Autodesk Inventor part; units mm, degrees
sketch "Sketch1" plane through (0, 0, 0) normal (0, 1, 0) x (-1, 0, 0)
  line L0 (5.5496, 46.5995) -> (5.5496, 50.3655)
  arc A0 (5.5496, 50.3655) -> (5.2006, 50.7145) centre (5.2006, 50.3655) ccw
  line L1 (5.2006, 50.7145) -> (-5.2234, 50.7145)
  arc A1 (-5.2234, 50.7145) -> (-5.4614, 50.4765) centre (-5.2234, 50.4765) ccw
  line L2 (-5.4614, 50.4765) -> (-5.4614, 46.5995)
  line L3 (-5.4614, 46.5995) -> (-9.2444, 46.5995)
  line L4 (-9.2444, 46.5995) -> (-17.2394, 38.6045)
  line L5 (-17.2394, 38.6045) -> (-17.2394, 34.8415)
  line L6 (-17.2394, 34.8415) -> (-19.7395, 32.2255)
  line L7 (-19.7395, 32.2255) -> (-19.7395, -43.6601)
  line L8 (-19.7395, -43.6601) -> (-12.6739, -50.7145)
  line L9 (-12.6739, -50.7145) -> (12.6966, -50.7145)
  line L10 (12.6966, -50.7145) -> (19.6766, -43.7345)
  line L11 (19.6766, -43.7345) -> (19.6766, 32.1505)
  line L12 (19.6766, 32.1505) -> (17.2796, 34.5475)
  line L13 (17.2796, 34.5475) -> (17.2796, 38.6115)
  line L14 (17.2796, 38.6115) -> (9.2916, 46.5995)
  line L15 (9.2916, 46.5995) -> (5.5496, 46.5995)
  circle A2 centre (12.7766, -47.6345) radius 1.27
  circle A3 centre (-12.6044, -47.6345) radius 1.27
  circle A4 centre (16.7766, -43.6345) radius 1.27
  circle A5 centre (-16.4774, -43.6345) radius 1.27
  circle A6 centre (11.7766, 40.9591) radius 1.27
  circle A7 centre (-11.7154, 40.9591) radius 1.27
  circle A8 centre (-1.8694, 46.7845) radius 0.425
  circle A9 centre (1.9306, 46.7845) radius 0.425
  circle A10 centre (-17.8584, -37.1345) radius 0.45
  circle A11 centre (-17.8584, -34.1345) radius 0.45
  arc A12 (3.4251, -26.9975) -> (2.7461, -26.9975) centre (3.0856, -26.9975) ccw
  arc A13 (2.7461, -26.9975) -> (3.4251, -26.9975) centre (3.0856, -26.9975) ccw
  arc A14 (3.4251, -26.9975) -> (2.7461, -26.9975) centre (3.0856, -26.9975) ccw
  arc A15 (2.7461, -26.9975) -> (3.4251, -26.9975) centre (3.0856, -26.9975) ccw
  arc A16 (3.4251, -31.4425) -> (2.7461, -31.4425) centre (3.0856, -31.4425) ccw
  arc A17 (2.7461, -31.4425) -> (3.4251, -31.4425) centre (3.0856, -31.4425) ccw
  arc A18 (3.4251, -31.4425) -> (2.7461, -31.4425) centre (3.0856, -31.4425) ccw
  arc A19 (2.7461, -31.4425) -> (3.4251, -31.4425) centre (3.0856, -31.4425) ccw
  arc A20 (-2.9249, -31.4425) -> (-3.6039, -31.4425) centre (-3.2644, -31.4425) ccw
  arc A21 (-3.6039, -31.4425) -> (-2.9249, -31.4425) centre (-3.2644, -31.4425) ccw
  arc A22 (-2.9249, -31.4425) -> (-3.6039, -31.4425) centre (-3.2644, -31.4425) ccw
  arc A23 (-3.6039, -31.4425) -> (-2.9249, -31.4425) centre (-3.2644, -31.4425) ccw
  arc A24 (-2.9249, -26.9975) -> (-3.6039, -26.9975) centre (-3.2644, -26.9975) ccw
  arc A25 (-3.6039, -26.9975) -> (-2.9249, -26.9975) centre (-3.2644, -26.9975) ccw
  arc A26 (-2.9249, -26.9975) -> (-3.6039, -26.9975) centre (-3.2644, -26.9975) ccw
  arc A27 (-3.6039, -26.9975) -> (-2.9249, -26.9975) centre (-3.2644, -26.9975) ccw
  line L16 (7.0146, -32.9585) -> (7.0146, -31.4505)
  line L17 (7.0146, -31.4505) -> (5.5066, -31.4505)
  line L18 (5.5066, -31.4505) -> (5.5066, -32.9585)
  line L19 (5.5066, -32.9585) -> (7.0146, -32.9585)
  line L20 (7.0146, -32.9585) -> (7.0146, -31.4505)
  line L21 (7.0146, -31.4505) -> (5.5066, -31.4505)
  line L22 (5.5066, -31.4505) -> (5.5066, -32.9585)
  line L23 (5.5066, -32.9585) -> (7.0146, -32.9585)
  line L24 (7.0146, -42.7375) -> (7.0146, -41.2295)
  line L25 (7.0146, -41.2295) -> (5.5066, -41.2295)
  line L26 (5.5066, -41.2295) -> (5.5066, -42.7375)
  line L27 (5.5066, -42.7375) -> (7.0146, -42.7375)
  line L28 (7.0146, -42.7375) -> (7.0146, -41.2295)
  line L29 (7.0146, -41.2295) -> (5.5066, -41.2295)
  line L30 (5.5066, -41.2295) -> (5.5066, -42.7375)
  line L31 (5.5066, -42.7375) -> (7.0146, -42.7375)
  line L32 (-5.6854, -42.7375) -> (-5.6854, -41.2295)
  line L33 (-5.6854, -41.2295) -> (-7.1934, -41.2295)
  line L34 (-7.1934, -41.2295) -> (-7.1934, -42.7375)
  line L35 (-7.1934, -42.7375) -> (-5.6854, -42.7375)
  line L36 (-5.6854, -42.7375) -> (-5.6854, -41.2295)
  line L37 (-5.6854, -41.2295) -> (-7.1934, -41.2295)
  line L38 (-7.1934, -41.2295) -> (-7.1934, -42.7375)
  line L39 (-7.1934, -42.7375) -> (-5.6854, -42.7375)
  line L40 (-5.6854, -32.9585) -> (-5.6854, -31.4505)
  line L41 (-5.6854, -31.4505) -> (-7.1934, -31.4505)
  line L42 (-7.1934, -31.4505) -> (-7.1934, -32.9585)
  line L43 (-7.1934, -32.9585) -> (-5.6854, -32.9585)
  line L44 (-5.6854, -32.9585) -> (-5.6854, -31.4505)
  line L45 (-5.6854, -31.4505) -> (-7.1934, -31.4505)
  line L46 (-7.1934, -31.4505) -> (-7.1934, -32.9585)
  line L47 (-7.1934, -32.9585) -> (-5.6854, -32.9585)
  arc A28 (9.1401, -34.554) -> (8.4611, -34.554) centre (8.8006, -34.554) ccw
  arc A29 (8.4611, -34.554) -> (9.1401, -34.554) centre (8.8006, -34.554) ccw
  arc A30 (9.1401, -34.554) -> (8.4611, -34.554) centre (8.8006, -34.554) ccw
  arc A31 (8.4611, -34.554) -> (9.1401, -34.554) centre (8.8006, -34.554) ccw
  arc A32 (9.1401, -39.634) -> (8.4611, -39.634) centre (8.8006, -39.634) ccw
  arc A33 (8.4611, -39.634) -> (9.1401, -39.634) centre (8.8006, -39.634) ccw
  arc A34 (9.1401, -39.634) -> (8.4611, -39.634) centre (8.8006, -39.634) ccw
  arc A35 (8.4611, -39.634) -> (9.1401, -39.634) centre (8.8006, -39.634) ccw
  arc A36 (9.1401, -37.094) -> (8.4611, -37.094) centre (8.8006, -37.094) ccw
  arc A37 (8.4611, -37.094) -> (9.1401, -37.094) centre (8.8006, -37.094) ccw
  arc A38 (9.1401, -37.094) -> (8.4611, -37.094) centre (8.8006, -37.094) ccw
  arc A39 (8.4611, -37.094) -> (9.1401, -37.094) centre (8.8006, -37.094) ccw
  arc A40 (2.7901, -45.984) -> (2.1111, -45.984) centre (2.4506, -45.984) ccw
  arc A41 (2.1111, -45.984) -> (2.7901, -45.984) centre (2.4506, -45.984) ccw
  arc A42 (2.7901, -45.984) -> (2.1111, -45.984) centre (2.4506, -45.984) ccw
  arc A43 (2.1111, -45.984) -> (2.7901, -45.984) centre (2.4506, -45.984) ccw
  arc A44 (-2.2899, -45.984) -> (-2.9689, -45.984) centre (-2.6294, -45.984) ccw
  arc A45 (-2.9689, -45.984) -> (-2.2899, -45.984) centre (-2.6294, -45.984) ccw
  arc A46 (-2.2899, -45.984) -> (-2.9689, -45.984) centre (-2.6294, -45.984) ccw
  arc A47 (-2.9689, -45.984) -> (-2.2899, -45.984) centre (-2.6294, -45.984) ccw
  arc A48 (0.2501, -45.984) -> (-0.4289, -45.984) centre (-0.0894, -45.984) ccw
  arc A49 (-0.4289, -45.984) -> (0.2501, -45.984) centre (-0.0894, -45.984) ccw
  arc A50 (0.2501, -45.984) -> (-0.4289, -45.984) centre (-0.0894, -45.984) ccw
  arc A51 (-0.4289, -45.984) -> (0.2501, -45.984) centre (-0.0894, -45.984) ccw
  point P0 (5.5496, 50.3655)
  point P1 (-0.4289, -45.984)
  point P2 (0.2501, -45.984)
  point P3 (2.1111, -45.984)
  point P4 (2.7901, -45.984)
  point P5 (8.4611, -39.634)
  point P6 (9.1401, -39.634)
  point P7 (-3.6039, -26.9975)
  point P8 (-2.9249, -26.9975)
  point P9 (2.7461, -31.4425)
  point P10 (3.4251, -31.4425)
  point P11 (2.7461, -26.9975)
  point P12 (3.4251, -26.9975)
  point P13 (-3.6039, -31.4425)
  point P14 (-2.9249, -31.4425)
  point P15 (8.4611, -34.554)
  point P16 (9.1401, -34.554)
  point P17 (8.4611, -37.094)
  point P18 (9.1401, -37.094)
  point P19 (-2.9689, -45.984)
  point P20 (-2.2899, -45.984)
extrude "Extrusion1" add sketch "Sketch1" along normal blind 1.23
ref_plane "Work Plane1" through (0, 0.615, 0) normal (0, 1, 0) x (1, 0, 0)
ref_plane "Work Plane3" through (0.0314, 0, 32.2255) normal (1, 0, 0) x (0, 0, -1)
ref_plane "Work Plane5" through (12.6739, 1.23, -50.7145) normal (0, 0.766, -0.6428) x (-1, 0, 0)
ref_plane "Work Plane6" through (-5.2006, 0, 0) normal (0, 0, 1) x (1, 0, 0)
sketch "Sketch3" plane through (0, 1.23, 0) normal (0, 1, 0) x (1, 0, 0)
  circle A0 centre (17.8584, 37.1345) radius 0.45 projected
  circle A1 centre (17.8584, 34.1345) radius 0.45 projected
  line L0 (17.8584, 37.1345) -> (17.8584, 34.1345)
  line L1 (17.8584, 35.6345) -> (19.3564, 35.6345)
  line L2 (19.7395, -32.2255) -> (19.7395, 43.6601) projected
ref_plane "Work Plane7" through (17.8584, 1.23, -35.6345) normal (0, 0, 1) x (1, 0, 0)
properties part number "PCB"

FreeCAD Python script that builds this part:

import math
import FreeCAD as App
import Part
import Sketcher

V = App.Vector
Q = App.Units.Quantity

doc = App.newDocument("Part")
body = doc.addObject("PartDesign::Body", "Body")

sketch1 = body.newObject("Sketcher::SketchObject", "Sketch")
sketch1.AttachmentSupport = (doc.getObject("XZ_Plane"), [""])
sketch1.MapMode = "FlatFace"
sketch1.addGeometry([
    Part.LineSegment(V(-9.2916, 46.5995, 0), V(-5.5496, 46.5995, 0)),
    Part.LineSegment(V(-5.5496, 46.5995, 0), V(-5.5496, 50.3655, 0)),
    Part.ArcOfCircle(Part.Circle(V(-5.2006, 50.3655, 0), V(0, 0, 1), 0.349), math.radians(90), math.radians(180)),
    Part.LineSegment(V(-5.2006, 50.7145, 0), V(5.2234, 50.7145, 0)),
    Part.ArcOfCircle(Part.Circle(V(5.2234, 50.4765, 0), V(0, 0, 1), 0.238), math.radians(0), math.radians(90)),
    Part.LineSegment(V(5.4614, 50.4765, 0), V(5.4614, 46.5995, 0)),
    Part.LineSegment(V(5.4614, 46.5995, 0), V(9.2444, 46.5995, 0)),
    Part.LineSegment(V(9.2444, 46.5995, 0), V(17.2394, 38.6045, 0)),
    Part.LineSegment(V(17.2394, 38.6045, 0), V(17.2394, 34.8415, 0)),
    Part.LineSegment(V(17.2394, 34.8415, 0), V(19.7395, 32.2255, 0)),
    Part.LineSegment(V(19.7395, 32.2255, 0), V(19.7395, -43.6601, 0)),
    Part.LineSegment(V(19.7395, -43.6601, 0), V(12.6739, -50.7145, 0)),
    Part.LineSegment(V(12.6739, -50.7145, 0), V(-12.6966, -50.7145, 0)),
    Part.LineSegment(V(-12.6966, -50.7145, 0), V(-19.6766, -43.7345, 0)),
    Part.LineSegment(V(-19.6766, -43.7345, 0), V(-19.6766, 32.1505, 0)),
    Part.LineSegment(V(-19.6766, 32.1505, 0), V(-17.2796, 34.5475, 0)),
    Part.LineSegment(V(-17.2796, 34.5475, 0), V(-17.2796, 38.6115, 0)),
    Part.LineSegment(V(-17.2796, 38.6115, 0), V(-9.2916, 46.5995, 0)),
    Part.Circle(V(16.4774, -43.6345, 0), V(0, 0, 1), 1.27),
    Part.Circle(V(12.6044, -47.6345, 0), V(0, 0, 1), 1.27),
    Part.Circle(V(17.8584, -37.1345, 0), V(0, 0, 1), 0.45),
    Part.Circle(V(17.8584, -34.1345, 0), V(0, 0, 1), 0.45),
    Part.LineSegment(V(5.6854, -41.2295, 0), V(5.6854, -42.7375, 0)),
    Part.LineSegment(V(5.6854, -42.7375, 0), V(7.1934, -42.7375, 0)),
    Part.LineSegment(V(7.1934, -42.7375, 0), V(7.1934, -41.2295, 0)),
    Part.LineSegment(V(7.1934, -41.2295, 0), V(5.6854, -41.2295, 0)),
    Part.Circle(V(2.6294, -45.984, 0), V(0, 0, 1), 0.3395),
    Part.Circle(V(0.0894, -45.984, 0), V(0, 0, 1), 0.3395),
    Part.LineSegment(V(5.6854, -31.4505, 0), V(5.6854, -32.9585, 0)),
    Part.LineSegment(V(5.6854, -32.9585, 0), V(7.1934, -32.9585, 0)),
    Part.LineSegment(V(7.1934, -32.9585, 0), V(7.1934, -31.4505, 0)),
    Part.LineSegment(V(7.1934, -31.4505, 0), V(5.6854, -31.4505, 0)),
    Part.Circle(V(3.2644, -31.4425, 0), V(0, 0, 1), 0.3395),
    Part.Circle(V(3.2644, -26.9975, 0), V(0, 0, 1), 0.3395),
    Part.Circle(V(-2.4506, -45.984, 0), V(0, 0, 1), 0.3395),
    Part.LineSegment(V(-7.0146, -41.2295, 0), V(-7.0146, -42.7375, 0)),
    Part.LineSegment(V(-7.0146, -42.7375, 0), V(-5.5066, -42.7375, 0)),
    Part.LineSegment(V(-5.5066, -42.7375, 0), V(-5.5066, -41.2295, 0)),
    Part.LineSegment(V(-5.5066, -41.2295, 0), V(-7.0146, -41.2295, 0)),
    Part.Circle(V(-8.8006, -39.634, 0), V(0, 0, 1), 0.3395),
    Part.Circle(V(-3.0856, -31.4425, 0), V(0, 0, 1), 0.3395),
    Part.Circle(V(-3.0856, -26.9975, 0), V(0, 0, 1), 0.3395),
    Part.LineSegment(V(-7.0146, -31.4505, 0), V(-7.0146, -32.9585, 0)),
    Part.LineSegment(V(-7.0146, -32.9585, 0), V(-5.5066, -32.9585, 0)),
    Part.LineSegment(V(-5.5066, -32.9585, 0), V(-5.5066, -31.4505, 0)),
    Part.LineSegment(V(-5.5066, -31.4505, 0), V(-7.0146, -31.4505, 0)),
    Part.Circle(V(-8.8006, -37.094, 0), V(0, 0, 1), 0.3395),
    Part.Circle(V(-8.8006, -34.554, 0), V(0, 0, 1), 0.3395),
    Part.Circle(V(-12.7766, -47.6345, 0), V(0, 0, 1), 1.27),
    Part.Circle(V(-16.7766, -43.6345, 0), V(0, 0, 1), 1.27),
    Part.Circle(V(11.7154, 40.9591, 0), V(0, 0, 1), 1.27),
    Part.Circle(V(1.8694, 46.7845, 0), V(0, 0, 1), 0.425),
    Part.Circle(V(-1.9306, 46.7845, 0), V(0, 0, 1), 0.425),
    Part.Circle(V(-11.7766, 40.9591, 0), V(0, 0, 1), 1.27),
], False)
sketch1.addConstraint([
    Sketcher.Constraint("Coincident", 0, 2, 1, 1),
    Sketcher.Constraint("Tangent", 1, 2, 2, 2),
    Sketcher.Constraint("Tangent", 2, 1, 3, 1),
    Sketcher.Constraint("Tangent", 3, 2, 4, 2),
    Sketcher.Constraint("Tangent", 4, 1, 5, 1),
    Sketcher.Constraint("Coincident", 5, 2, 6, 1),
    Sketcher.Constraint("Coincident", 6, 2, 7, 1),
    Sketcher.Constraint("Coincident", 7, 2, 8, 1),
    Sketcher.Constraint("Coincident", 8, 2, 9, 1),
    Sketcher.Constraint("Coincident", 9, 2, 10, 1),
    Sketcher.Constraint("Coincident", 10, 2, 11, 1),
    Sketcher.Constraint("Coincident", 11, 2, 12, 1),
    Sketcher.Constraint("Coincident", 12, 2, 13, 1),
    Sketcher.Constraint("Coincident", 13, 2, 14, 1),
    Sketcher.Constraint("Coincident", 14, 2, 15, 1),
    Sketcher.Constraint("Coincident", 15, 2, 16, 1),
    Sketcher.Constraint("Coincident", 16, 2, 17, 1),
    Sketcher.Constraint("Coincident", 17, 2, 0, 1),
    Sketcher.Constraint("Coincident", 22, 2, 23, 1),
    Sketcher.Constraint("Coincident", 23, 2, 24, 1),
    Sketcher.Constraint("Coincident", 24, 2, 25, 1),
    Sketcher.Constraint("Coincident", 25, 2, 22, 1),
    Sketcher.Constraint("Coincident", 28, 2, 29, 1),
    Sketcher.Constraint("Coincident", 29, 2, 30, 1),
    Sketcher.Constraint("Coincident", 30, 2, 31, 1),
    Sketcher.Constraint("Coincident", 31, 2, 28, 1),
    Sketcher.Constraint("Coincident", 35, 2, 36, 1),
    Sketcher.Constraint("Coincident", 36, 2, 37, 1),
    Sketcher.Constraint("Coincident", 37, 2, 38, 1),
    Sketcher.Constraint("Coincident", 38, 2, 35, 1),
    Sketcher.Constraint("Coincident", 42, 2, 43, 1),
    Sketcher.Constraint("Coincident", 43, 2, 44, 1),
    Sketcher.Constraint("Coincident", 44, 2, 45, 1),
    Sketcher.Constraint("Coincident", 45, 2, 42, 1),
    Sketcher.Constraint("Horizontal", 0),
    Sketcher.Constraint("Vertical", 1),
    Sketcher.Constraint("Horizontal", 3),
    Sketcher.Constraint("Vertical", 5),
    Sketcher.Constraint("Horizontal", 6),
    Sketcher.Constraint("Vertical", 8),
    Sketcher.Constraint("Vertical", 10),
    Sketcher.Constraint("Horizontal", 12),
    Sketcher.Constraint("Vertical", 14),
    Sketcher.Constraint("Vertical", 16),
    Sketcher.Constraint("Vertical", 22),
    Sketcher.Constraint("Horizontal", 23),
    Sketcher.Constraint("Vertical", 24),
    Sketcher.Constraint("Horizontal", 25),
    Sketcher.Constraint("Vertical", 28),
    Sketcher.Constraint("Horizontal", 29),
    Sketcher.Constraint("Vertical", 30),
    Sketcher.Constraint("Horizontal", 31),
    Sketcher.Constraint("Vertical", 35),
    Sketcher.Constraint("Horizontal", 36),
    Sketcher.Constraint("Vertical", 37),
    Sketcher.Constraint("Horizontal", 38),
    Sketcher.Constraint("Vertical", 42),
    Sketcher.Constraint("Horizontal", 43),
    Sketcher.Constraint("Vertical", 44),
    Sketcher.Constraint("Horizontal", 45),
    Sketcher.Constraint("Equal", 18, 19),
    Sketcher.Constraint("Equal", 20, 21),
    Sketcher.Constraint("Equal", 26, 27),
    Sketcher.Constraint("Equal", 27, 32),
    Sketcher.Constraint("Equal", 32, 33),
    Sketcher.Constraint("Equal", 33, 34),
    Sketcher.Constraint("Equal", 34, 39),
    Sketcher.Constraint("Equal", 39, 40),
    Sketcher.Constraint("Equal", 40, 41),
    Sketcher.Constraint("Equal", 41, 46),
    Sketcher.Constraint("Equal", 46, 47),
    Sketcher.Constraint("Equal", 19, 48),
    Sketcher.Constraint("Equal", 48, 49),
    Sketcher.Constraint("Equal", 49, 50),
    Sketcher.Constraint("Equal", 51, 52),
    Sketcher.Constraint("Equal", 50, 53),
    Sketcher.Constraint("Parallel", 7, 13),
    Sketcher.Constraint("Perpendicular", 13, 15),
    Sketcher.Constraint("Parallel", 15, 17),
    Sketcher.Constraint("Horizontal", 26, 3, 27, 3),
    Sketcher.Constraint("Horizontal", 27, 3, 34, 3),
    Sketcher.Constraint("Horizontal", 32, 3, 40, 3),
    Sketcher.Constraint("Horizontal", 33, 3, 41, 3),
    Sketcher.Constraint("Horizontal", 19, 3, 48, 3),
    Sketcher.Constraint("Horizontal", 18, 3, 49, 3),
    Sketcher.Constraint("Horizontal", 51, 3, 52, 3),
    Sketcher.Constraint("Horizontal", 50, 3, 53, 3),
    Sketcher.Constraint("Horizontal", 0, 2, 5, 2),
    Sketcher.Constraint("Horizontal", 23, 2, 35, 2),
    Sketcher.Constraint("Horizontal", 25, 2, 37, 2),
    Sketcher.Constraint("Horizontal", 29, 2, 42, 2),
    Sketcher.Constraint("Horizontal", 31, 2, 44, 2),
    Sketcher.Constraint("Vertical", 20, 3, 21, 3),
    Sketcher.Constraint("Vertical", 32, 3, 33, 3),
    Sketcher.Constraint("Vertical", 40, 3, 41, 3),
    Sketcher.Constraint("Vertical", 39, 3, 46, 3),
    Sketcher.Constraint("Vertical", 46, 3, 47, 3),
    Sketcher.Constraint("Vertical", 25, 2, 28, 2),
    Sketcher.Constraint("Vertical", 24, 2, 29, 2),
    Sketcher.Constraint("Vertical", 38, 2, 42, 2),
    Sketcher.Constraint("Vertical", 37, 2, 43, 2),
    Sketcher.Constraint("Equal", 31, 36),
    Sketcher.Constraint("Equal", 45, 22),
    Sketcher.Constraint("Equal", 24, 28),
    Sketcher.Constraint("Diameter", 18, Q("0.1 in")),
    Sketcher.Constraint("Angle", 7, Q("-45 deg")),
    Sketcher.Constraint("DistanceY", 16, 1, 16, 2, Q("0.16 in")),
    Sketcher.Constraint("DistanceX", 27, 3, 26, 3, Q("0.1 in")),
    Sketcher.Constraint("DistanceX", 34, 3, 27, 3, Q("0.1 in")),
    Sketcher.Constraint("DistanceY", 39, 3, 46, 3, Q("0.1 in")),
    Sketcher.Constraint("DistanceY", 46, 3, 47, 3, Q("0.1 in")),
    Sketcher.Constraint("Diameter", 20, 0.9),
    Sketcher.Constraint("Diameter", 26, 0.679),
    Sketcher.Constraint("Diameter", 51, 0.85),
    Sketcher.Constraint("Radius", 2, 0.349),
    Sketcher.Constraint("Radius", 4, 0.238),
    Sketcher.Constraint("DistanceY", 18, 3, 32, 3, Q("0.48 in")),
    Sketcher.Constraint("DistanceX", 39, 3, 34, 3, Q("0.25 in")),
    Sketcher.Constraint("DistanceY", 34, 3, 39, 3, Q("0.25 in")),
    Sketcher.Constraint("DistanceX", 40, 3, 32, 3, Q("0.25 in")),
    Sketcher.Constraint("DistanceX", 3, 1, 3, 2, Q("0.4104 in")),
    Sketcher.Constraint("DistanceY", 14, 1, 14, 2, Q("2.9876 in")),
    Sketcher.Constraint("DistanceY", 20, 3, -1, 1, Q("1.462 in")),
    Sketcher.Constraint("DistanceX", 52, 3, -1, 1, Q("0.076 in")),
    Sketcher.Constraint("DistanceX", 26, 3, 32, 3, Q("0.025 in")),
    Sketcher.Constraint("DistanceY", 32, 3, 33, 3, Q("0.175 in")),
    Sketcher.Constraint("DistanceY", 0, 2, 2, 1, Q("0.162 in")),
    Sketcher.Constraint("DistanceY", 9, 2, 8, 2, Q("0.103 in")),
    Sketcher.Constraint("DistanceY", 10, 2, 18, 3, Q("0.001 in")),
    Sketcher.Constraint("DistanceY", 24, 2, 30, 2, Q("0.385 in")),
    Sketcher.Constraint("DistanceX", 0, 1, 0, 2, 3.742),
    Sketcher.Constraint("DistanceX", 6, 1, 6, 2, 3.783),
    Sketcher.Constraint("DistanceX", 12, 2, 12, 1, 25.3705),
    Sketcher.Constraint("DistanceX", 23, 1, 23, 2, 1.508),
    Sketcher.Constraint("DistanceY", 8, 2, 8, 1, 3.763),
    Sketcher.Constraint("DistanceY", 10, 2, 10, 1, 75.8856),
    Sketcher.Constraint("DistanceY", -1, 1, 2, 3, Q("1.9829 in")),
    Sketcher.Constraint("DistanceY", 18, 3, -1, 1, Q("1.7179 in")),
    Sketcher.Constraint("DistanceY", 26, 3, -1, 1, Q("1.8104 in")),
    Sketcher.Constraint("DistanceX", 49, 3, -1, 1, Q("0.6605 in")),
    Sketcher.Constraint("DistanceX", -1, 1, 51, 3, Q("0.0736 in")),
    Sketcher.Constraint("DistanceY", -1, 1, 51, 3, Q("1.8419 in")),
    Sketcher.Constraint("DistanceX", 0, 2, -1, 1, Q("0.2185 in")),
    Sketcher.Constraint("DistanceX", 15, 2, -1, 1, Q("0.6803 in")),
    Sketcher.Constraint("DistanceX", -1, 1, 23, 2, Q("0.2832 in")),
    Sketcher.Constraint("DistanceY", 24, 2, -1, 1, Q("1.6232 in")),
    Sketcher.Constraint("DistanceX", 36, 2, -1, 1, Q("0.2168 in")),
    Sketcher.Constraint("DistanceX", 4, 3, 19, 3, Q("0.2906 in")),
    Sketcher.Constraint("DistanceY", 20, 3, 21, 3, Q("0.1181 in")),
    Sketcher.Constraint("DistanceY", 19, 3, 21, 3, Q("0.5315 in")),
    Sketcher.Constraint("DistanceX", 26, 3, 18, 3, Q("0.5452 in")),
    Sketcher.Constraint("DistanceX", 4, 3, 50, 3, Q("0.2556 in")),
    Sketcher.Constraint("DistanceY", 50, 3, 4, 3, Q("0.3747 in")),
    Sketcher.Constraint("DistanceX", 53, 3, 2, 3, Q("0.2589 in")),
    Sketcher.Constraint("DistanceX", 50, 3, 9, 2, Q("0.3159 in")),
    Sketcher.Constraint("DistanceX", 13, 2, 12, 2, Q("0.2748 in")),
    Sketcher.Constraint("DistanceX", 13, 2, 39, 3, Q("0.4282 in")),
    Sketcher.Constraint("DistanceY", 14, 2, 53, 3, Q("0.3468 in")),
    Sketcher.Constraint("DistanceX", -1, 1, 20, 3, 17.8584),
    Sketcher.Constraint("DistanceX", 48, 3, -1, 1, 12.7766),
])
pad1 = body.newObject("PartDesign::Pad", "Pad")
pad1.Profile = sketch1
pad1.Length = 1.23
pad1.Reversed = True

doc.recompute()
